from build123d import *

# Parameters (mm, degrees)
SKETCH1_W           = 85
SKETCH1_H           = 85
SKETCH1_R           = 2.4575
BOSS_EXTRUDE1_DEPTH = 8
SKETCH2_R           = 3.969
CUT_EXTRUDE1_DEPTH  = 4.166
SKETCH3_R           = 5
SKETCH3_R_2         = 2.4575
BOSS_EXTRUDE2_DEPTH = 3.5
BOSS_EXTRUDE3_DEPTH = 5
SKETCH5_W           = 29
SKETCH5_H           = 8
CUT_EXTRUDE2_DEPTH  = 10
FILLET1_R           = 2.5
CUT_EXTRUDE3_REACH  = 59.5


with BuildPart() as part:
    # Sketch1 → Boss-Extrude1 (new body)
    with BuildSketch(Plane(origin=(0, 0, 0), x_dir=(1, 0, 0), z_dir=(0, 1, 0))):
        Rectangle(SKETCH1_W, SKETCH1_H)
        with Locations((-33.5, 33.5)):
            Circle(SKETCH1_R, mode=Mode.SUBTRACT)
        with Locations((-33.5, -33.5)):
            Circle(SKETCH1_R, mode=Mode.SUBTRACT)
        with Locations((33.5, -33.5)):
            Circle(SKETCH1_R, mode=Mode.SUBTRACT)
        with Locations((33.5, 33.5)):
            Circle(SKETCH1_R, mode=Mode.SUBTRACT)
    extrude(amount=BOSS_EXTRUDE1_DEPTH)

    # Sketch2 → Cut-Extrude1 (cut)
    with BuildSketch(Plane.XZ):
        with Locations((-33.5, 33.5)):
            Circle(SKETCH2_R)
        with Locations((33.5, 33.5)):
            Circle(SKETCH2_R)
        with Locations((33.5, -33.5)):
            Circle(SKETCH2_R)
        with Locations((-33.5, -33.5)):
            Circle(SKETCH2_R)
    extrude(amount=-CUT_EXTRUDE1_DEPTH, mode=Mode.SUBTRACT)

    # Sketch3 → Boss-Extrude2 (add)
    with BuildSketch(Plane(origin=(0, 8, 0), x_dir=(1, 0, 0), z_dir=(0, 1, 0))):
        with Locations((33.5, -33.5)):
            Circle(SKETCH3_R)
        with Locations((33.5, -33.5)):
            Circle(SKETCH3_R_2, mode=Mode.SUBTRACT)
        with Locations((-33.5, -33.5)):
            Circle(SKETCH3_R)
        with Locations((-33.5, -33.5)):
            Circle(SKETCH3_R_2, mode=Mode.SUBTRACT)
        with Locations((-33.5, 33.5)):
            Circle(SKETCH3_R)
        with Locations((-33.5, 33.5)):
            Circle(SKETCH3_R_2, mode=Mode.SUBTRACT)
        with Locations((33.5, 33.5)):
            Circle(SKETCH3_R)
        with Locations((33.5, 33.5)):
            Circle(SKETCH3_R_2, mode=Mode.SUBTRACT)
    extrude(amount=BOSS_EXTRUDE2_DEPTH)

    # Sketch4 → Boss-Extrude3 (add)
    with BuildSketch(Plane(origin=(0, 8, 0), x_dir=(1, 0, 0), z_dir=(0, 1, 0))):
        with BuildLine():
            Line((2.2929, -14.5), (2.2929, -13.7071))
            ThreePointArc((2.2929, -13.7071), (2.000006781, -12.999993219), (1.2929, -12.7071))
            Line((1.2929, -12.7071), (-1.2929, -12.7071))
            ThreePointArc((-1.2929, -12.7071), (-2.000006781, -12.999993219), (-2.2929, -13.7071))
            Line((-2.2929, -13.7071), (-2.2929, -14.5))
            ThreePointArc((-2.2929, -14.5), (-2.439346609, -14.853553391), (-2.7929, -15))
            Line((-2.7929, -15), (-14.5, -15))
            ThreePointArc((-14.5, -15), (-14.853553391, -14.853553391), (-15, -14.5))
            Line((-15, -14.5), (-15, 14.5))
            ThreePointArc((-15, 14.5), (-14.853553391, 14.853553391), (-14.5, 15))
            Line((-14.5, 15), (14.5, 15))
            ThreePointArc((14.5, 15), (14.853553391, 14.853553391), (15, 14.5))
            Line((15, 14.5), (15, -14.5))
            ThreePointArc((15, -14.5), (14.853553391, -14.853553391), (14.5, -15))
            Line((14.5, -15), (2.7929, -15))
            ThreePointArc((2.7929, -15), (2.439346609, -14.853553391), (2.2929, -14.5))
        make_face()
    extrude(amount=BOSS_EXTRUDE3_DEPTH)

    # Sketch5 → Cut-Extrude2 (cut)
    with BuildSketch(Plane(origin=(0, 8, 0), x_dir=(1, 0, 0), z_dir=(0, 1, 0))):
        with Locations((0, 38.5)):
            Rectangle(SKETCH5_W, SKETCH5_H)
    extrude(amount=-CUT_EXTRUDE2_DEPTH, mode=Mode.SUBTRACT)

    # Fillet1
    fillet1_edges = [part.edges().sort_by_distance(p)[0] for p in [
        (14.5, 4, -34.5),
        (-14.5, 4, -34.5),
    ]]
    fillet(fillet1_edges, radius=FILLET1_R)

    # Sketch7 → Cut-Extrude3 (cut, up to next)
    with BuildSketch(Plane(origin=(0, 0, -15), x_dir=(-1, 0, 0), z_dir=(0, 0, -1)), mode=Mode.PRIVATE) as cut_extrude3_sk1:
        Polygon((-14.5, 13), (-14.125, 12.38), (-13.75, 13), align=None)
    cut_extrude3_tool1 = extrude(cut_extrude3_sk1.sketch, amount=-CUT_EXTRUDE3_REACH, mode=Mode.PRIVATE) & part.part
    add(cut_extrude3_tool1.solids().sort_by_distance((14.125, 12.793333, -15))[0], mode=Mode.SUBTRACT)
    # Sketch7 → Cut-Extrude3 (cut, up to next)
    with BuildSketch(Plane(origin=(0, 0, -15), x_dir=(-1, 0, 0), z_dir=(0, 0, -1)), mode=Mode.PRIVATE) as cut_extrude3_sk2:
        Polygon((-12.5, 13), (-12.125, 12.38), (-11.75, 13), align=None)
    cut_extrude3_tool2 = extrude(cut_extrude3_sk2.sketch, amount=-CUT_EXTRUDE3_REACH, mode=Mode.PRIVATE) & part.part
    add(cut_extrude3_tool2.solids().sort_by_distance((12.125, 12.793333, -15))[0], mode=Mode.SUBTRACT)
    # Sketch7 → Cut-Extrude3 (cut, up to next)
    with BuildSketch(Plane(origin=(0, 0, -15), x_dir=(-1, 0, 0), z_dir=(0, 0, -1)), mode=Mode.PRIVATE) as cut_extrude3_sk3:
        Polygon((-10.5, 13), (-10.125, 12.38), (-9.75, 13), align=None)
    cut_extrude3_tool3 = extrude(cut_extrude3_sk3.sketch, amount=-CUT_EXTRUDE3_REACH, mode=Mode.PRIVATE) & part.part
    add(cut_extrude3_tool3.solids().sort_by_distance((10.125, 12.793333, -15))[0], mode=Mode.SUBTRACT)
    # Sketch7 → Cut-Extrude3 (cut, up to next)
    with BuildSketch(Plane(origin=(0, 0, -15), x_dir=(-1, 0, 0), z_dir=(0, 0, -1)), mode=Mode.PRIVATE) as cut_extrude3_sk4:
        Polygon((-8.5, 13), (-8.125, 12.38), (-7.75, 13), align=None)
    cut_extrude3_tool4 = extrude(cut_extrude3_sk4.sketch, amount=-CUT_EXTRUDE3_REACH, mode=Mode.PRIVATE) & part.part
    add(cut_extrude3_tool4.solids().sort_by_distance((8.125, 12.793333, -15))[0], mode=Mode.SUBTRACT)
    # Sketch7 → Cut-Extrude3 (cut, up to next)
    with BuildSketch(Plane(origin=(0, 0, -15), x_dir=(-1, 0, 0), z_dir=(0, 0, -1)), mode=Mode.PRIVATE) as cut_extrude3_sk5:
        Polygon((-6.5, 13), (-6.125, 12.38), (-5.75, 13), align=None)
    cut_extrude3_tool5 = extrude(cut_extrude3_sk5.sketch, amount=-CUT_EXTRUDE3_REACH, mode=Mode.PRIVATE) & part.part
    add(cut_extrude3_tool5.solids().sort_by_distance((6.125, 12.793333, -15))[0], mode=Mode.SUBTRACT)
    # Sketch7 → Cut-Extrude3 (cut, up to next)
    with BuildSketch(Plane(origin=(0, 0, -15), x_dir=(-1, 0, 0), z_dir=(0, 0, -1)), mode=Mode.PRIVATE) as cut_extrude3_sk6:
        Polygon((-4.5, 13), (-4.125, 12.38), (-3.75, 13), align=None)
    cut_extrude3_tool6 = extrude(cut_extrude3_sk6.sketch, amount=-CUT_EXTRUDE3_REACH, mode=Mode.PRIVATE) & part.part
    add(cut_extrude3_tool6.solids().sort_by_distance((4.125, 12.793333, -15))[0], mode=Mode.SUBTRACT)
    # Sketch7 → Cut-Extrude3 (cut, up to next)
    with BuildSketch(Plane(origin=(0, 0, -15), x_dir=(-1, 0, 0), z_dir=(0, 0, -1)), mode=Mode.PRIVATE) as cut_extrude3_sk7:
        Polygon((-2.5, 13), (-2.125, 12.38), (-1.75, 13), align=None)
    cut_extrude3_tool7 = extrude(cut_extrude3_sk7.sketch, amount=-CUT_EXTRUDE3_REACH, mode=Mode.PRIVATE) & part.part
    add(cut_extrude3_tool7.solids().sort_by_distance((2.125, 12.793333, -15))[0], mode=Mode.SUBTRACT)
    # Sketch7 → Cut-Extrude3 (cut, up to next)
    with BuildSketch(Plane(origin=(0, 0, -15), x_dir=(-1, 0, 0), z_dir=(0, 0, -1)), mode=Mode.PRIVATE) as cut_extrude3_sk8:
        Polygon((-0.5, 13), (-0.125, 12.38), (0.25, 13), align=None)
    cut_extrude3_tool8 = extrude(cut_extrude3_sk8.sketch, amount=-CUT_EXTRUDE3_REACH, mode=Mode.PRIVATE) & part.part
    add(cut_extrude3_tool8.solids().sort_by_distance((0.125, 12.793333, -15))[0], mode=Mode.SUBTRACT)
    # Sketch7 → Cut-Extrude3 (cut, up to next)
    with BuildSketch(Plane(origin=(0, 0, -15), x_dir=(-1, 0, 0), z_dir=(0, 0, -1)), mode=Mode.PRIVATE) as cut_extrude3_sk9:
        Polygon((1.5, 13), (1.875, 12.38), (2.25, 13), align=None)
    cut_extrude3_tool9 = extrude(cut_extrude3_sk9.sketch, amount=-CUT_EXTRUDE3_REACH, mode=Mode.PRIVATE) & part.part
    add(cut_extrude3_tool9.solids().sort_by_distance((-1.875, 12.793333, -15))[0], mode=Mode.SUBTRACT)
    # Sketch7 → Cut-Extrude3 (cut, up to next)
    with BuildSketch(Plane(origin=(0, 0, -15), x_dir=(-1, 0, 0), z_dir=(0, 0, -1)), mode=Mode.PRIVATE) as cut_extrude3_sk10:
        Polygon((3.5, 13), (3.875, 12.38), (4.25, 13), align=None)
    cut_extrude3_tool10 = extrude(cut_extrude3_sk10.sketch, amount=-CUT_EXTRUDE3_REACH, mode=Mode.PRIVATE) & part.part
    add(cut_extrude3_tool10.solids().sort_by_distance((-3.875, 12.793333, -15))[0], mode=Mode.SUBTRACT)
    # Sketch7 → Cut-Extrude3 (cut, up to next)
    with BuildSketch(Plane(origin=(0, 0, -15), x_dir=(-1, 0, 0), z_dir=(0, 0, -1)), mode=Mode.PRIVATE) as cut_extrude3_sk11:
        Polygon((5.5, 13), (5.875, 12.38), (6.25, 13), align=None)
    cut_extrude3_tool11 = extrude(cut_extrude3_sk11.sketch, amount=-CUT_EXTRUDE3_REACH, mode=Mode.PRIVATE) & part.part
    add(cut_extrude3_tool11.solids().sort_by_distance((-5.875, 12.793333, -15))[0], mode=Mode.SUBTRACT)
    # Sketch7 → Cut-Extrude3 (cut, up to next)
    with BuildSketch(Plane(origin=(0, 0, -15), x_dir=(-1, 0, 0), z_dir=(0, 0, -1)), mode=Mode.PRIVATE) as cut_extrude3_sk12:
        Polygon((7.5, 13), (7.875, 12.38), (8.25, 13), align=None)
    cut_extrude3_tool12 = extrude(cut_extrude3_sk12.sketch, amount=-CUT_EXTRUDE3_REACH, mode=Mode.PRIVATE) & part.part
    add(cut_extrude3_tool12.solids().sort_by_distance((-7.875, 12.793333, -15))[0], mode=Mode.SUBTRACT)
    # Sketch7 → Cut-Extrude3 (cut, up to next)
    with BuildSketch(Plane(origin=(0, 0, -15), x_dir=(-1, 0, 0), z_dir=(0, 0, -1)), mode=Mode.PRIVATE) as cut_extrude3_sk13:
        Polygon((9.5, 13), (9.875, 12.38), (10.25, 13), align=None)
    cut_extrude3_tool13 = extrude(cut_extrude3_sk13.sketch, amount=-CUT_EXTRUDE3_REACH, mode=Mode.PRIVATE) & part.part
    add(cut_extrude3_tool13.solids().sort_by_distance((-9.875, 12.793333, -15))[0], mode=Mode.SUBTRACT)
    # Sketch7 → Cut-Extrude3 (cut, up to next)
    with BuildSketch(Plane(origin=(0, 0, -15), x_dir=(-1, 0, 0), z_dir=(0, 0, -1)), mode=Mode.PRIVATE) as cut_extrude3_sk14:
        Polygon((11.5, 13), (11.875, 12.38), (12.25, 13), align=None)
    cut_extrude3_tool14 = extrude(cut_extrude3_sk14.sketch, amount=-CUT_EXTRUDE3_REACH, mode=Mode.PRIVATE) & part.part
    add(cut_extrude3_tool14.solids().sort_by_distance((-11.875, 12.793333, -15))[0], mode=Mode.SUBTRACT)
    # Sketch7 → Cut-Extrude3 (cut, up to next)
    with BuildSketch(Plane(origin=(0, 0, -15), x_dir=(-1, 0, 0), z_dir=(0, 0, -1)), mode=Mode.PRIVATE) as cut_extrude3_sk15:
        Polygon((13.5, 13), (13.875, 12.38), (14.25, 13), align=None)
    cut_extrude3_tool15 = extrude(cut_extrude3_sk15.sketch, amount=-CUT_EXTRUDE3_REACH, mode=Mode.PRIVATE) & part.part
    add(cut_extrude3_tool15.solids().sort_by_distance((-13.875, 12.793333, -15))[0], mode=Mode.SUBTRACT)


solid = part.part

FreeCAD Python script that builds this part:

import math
import FreeCAD as App
import Part
import Sketcher

V = App.Vector
Q = App.Units.Quantity


def edges_at(feature, points):
    """Names of the edges that pass closest to the given points."""
    edges = feature.Shape.Edges
    near = lambda p: min(range(len(edges)), key=lambda i: edges[i].distToShape(Part.Vertex(*p))[0])
    return sorted({f"Edge{near(p) + 1}" for p in points})


def add_polygon(sketch, points):
    """Adds a closed chain of lines whose ends are joined by coincident constraints."""
    first, n = sketch.GeometryCount, len(points)
    for a, b in zip(points, points[1:] + points[:1]):
        sketch.addGeometry(Part.LineSegment(App.Vector(*a, 0), App.Vector(*b, 0)), False)
    for i in range(n):
        sketch.addConstraint(Sketcher.Constraint("Coincident", first + i, 2, first + (i + 1) % n, 1))

doc = App.newDocument("Part")
params = doc.addObject("Spreadsheet::Sheet", "Params")
for row, (alias, value) in enumerate([
    ("sketch1_width", "85 mm"),
    ("pad1_length", "8 mm"),
    ("pocket1_length", "4.166 mm"),
    ("sketch3_diameter", "10 mm"),
    ("pad2_length", "3.5 mm"),
    ("sketch4_radius", "1 mm"),
    ("sketch4_radius2", "0.5 mm"),
    ("sketch4_width", "29 mm"),
    ("pad3_length", "5 mm"),
    ("sketch5_width", "29 mm"),
    ("sketch5_height", "8 mm"),
    ("pocket2_length", "10 mm"),
    ("fillet_radius", "2.5 mm"),
    ("sketch6_width", "0.75 mm"),
    ("sketch7_width", "0.75 mm"),
    ("sketch8_width", "0.75 mm"),
    ("sketch9_width", "0.75 mm"),
    ("sketch10_width", "0.75 mm"),
    ("sketch11_width", "0.75 mm"),
    ("sketch12_width", "0.75 mm"),
    ("sketch13_width", "0.75 mm"),
    ("sketch14_width", "0.75 mm"),
    ("sketch15_width", "0.75 mm"),
    ("sketch16_width", "0.75 mm"),
    ("sketch17_width", "0.75 mm"),
    ("sketch18_width", "0.75 mm"),
    ("sketch19_width", "0.75 mm"),
    ("sketch20_width", "0.75 mm"),
], start=1):
    params.set(f"A{row}", alias)
    params.set(f"B{row}", "=" + value)
    params.setAlias(f"B{row}", alias)

body = doc.addObject("PartDesign::Body", "Body")

sketch1 = body.newObject("Sketcher::SketchObject", "Sketch")
sketch1.AttachmentSupport = (doc.getObject("XZ_Plane"), [""])
sketch1.MapMode = "FlatFace"
add_polygon(sketch1, [(-42.5, -42.5), (-42.5, 42.5), (42.5, 42.5), (42.5, -42.5)])
sketch1.addGeometry(Part.Circle(V(-33.5, 33.5, 0), V(0, 0, 1), 2.5), False)
sketch1.addGeometry(Part.Circle(V(33.5, 33.5, 0), V(0, 0, 1), 2.5), False)
sketch1.addGeometry(Part.Circle(V(-33.5, -33.5, 0), V(0, 0, 1), 2.5), False)
sketch1.addGeometry(Part.Circle(V(33.5, -33.5, 0), V(0, 0, 1), 2.5), False)
sketch1.addConstraint(Sketcher.Constraint("Vertical", 0))
sketch1.addConstraint(Sketcher.Constraint("Horizontal", 1))
sketch1.addConstraint(Sketcher.Constraint("Vertical", 2))
sketch1.addConstraint(Sketcher.Constraint("Horizontal", 3))
sketch1.addConstraint(Sketcher.Constraint("Equal", 4, 5))
sketch1.addConstraint(Sketcher.Constraint("Equal", 5, 6))
sketch1.addConstraint(Sketcher.Constraint("Equal", 6, 7))
sketch1.addConstraint(Sketcher.Constraint("Symmetric", 5, 3, 6, 3, -1, 1))
sketch1.addConstraint(Sketcher.Constraint("Symmetric", 4, 3, 7, 3, -1, 1))
sketch1.addConstraint(Sketcher.Constraint("Symmetric", 0, 2, 2, 2, -1, 1))
sketch1.addConstraint(Sketcher.Constraint("Symmetric", 4, 3, 5, 3, -2))
sketch1.addConstraint(Sketcher.Constraint("Equal", 3, 0))
sketch1.addConstraint(Sketcher.Constraint("DistanceX", 1, 1, 1, 2, Q("85 mm")))
sketch1.addConstraint(Sketcher.Constraint("Diameter", 4, Q("4.915 mm")))
sketch1.addConstraint(Sketcher.Constraint("DistanceX", 4, 3, 5, 3, Q("67 mm")))
sketch1.addConstraint(Sketcher.Constraint("DistanceY", 6, 3, 4, 3, Q("67 mm")))
sketch1.setExpression("Constraints[16]", "Params.sketch1_width")
pad1 = body.newObject("PartDesign::Pad", "Pad")
pad1.Profile = sketch1
pad1.setExpression("Length", "Params.pad1_length")
pad1.Reversed = True

sketch2 = body.newObject("Sketcher::SketchObject", "Sketch001")
sketch2.AttachmentSupport = (doc.getObject("XZ_Plane"), [""])
sketch2.MapMode = "FlatFace"
sketch2.addGeometry(Part.Circle(V(-33.5, 33.5, 0), V(0, 0, 1), 4), False)
sketch2.addGeometry(Part.Circle(V(33.5, 33.5, 0), V(0, 0, 1), 4), False)
sketch2.addGeometry(Part.Circle(V(33.5, -33.5, 0), V(0, 0, 1), 4), False)
sketch2.addGeometry(Part.Circle(V(-33.5, -33.5, 0), V(0, 0, 1), 4), False)
sketch2.addConstraint(Sketcher.Constraint("Equal", 0, 1))
sketch2.addConstraint(Sketcher.Constraint("Equal", 1, 2))
sketch2.addConstraint(Sketcher.Constraint("Equal", 2, 3))
sketch2.addConstraint(Sketcher.Constraint("Symmetric", 0, 3, 2, 3, -1, 1))
sketch2.addConstraint(Sketcher.Constraint("Symmetric", 1, 3, 3, 3, -1, 1))
sketch2.addConstraint(Sketcher.Constraint("Symmetric", 0, 3, 1, 3, -2))
sketch2.addConstraint(Sketcher.Constraint("Diameter", 0, Q("7.938 mm")))
sketch2.addConstraint(Sketcher.Constraint("DistanceX", 0, 3, 1, 3, Q("67 mm")))
sketch2.addConstraint(Sketcher.Constraint("DistanceY", 2, 3, 1, 3, Q("67 mm")))
pocket1 = body.newObject("PartDesign::Pocket", "Pocket")
pocket1.Profile = sketch2
pocket1.setExpression("Length", "Params.pocket1_length")

sketch3 = body.newObject("Sketcher::SketchObject", "Sketch002")
sketch3.AttachmentSupport = (doc.getObject("XZ_Plane"), [""])
sketch3.MapMode = "FlatFace"
sketch3.AttachmentOffset = App.Placement(V(0, 0, -8), App.Rotation())
sketch3.addGeometry(Part.Circle(V(33.5, 33.5, 0), V(0, 0, 1), 5), False)
sketch3.addGeometry(Part.Circle(V(33.5, 33.5, 0), V(0, 0, 1), 2.5), False)
sketch3.addGeometry(Part.Circle(V(-33.5, 33.5, 0), V(0, 0, 1), 5), False)
sketch3.addGeometry(Part.Circle(V(-33.5, 33.5, 0), V(0, 0, 1), 2.5), False)
sketch3.addGeometry(Part.Circle(V(-33.5, -33.5, 0), V(0, 0, 1), 5), False)
sketch3.addGeometry(Part.Circle(V(-33.5, -33.5, 0), V(0, 0, 1), 2.5), False)
sketch3.addGeometry(Part.Circle(V(33.5, -33.5, 0), V(0, 0, 1), 5), False)
sketch3.addGeometry(Part.Circle(V(33.5, -33.5, 0), V(0, 0, 1), 2.5), False)
sketch3.addConstraint(Sketcher.Constraint("Coincident", 1, 3, 0, 3))
sketch3.addConstraint(Sketcher.Constraint("Coincident", 3, 3, 2, 3))
sketch3.addConstraint(Sketcher.Constraint("Coincident", 5, 3, 4, 3))
sketch3.addConstraint(Sketcher.Constraint("Coincident", 7, 3, 6, 3))
sketch3.addConstraint(Sketcher.Constraint("Equal", 0, 2))
sketch3.addConstraint(Sketcher.Constraint("Equal", 1, 3))
sketch3.addConstraint(Sketcher.Constraint("Equal", 2, 4))
sketch3.addConstraint(Sketcher.Constraint("Equal", 3, 5))
sketch3.addConstraint(Sketcher.Constraint("Equal", 4, 6))
sketch3.addConstraint(Sketcher.Constraint("Equal", 5, 7))
sketch3.addConstraint(Sketcher.Constraint("Symmetric", 0, 3, 4, 3, -1, 1))
sketch3.addConstraint(Sketcher.Constraint("Symmetric", 2, 3, 6, 3, -1, 1))
sketch3.addConstraint(Sketcher.Constraint("Symmetric", 0, 3, 2, 3, -2))
sketch3.addConstraint(Sketcher.Constraint("Diameter", 0, Q("10 mm")))
sketch3.addConstraint(Sketcher.Constraint("Diameter", 1, Q("4.915 mm")))
sketch3.addConstraint(Sketcher.Constraint("DistanceX", 2, 3, 0, 3, Q("67 mm")))
sketch3.addConstraint(Sketcher.Constraint("DistanceY", 4, 3, 2, 3, Q("67 mm")))
sketch3.setExpression("Constraints[13]", "Params.sketch3_diameter")
pad2 = body.newObject("PartDesign::Pad", "Pad001")
pad2.Profile = sketch3
pad2.setExpression("Length", "Params.pad2_length")
pad2.Reversed = True

sketch4 = body.newObject("Sketcher::SketchObject", "Sketch003")
sketch4.AttachmentSupport = (doc.getObject("XZ_Plane"), [""])
sketch4.MapMode = "FlatFace"
sketch4.AttachmentOffset = App.Placement(V(0, 0, -8), App.Rotation())
sketch4.addGeometry(Part.LineSegment(V(2.29, 13.71, 0), V(2.29, 14.5, 0)), False)
sketch4.addGeometry(Part.ArcOfCircle(Part.Circle(V(2.79, 14.5, 0), V(0, 0, 1), 0.5), math.radians(90), math.radians(180)), False)
sketch4.addGeometry(Part.LineSegment(V(2.79, 15, 0), V(14.5, 15, 0)), False)
sketch4.addGeometry(Part.ArcOfCircle(Part.Circle(V(14.5, 14.5, 0), V(0, 0, 1), 0.5), math.radians(0), math.radians(90)), False)
sketch4.addGeometry(Part.LineSegment(V(15, 14.5, 0), V(15, -14.5, 0)), False)
sketch4.addGeometry(Part.ArcOfCircle(Part.Circle(V(14.5, -14.5, 0), V(0, 0, 1), 0.5), math.radians(-90), math.radians(0)), False)
sketch4.addGeometry(Part.LineSegment(V(14.5, -15, 0), V(-14.5, -15, 0)), False)
sketch4.addGeometry(Part.ArcOfCircle(Part.Circle(V(-14.5, -14.5, 0), V(0, 0, 1), 0.5), math.radians(180), math.radians(270)), False)
sketch4.addGeometry(Part.LineSegment(V(-15, -14.5, 0), V(-15, 14.5, 0)), False)
sketch4.addGeometry(Part.ArcOfCircle(Part.Circle(V(-14.5, 14.5, 0), V(0, 0, 1), 0.5), math.radians(90), math.radians(180)), False)
sketch4.addGeometry(Part.LineSegment(V(-14.5, 15, 0), V(-2.79, 15, 0)), False)
sketch4.addGeometry(Part.ArcOfCircle(Part.Circle(V(-2.79, 14.5, 0), V(0, 0, 1), 0.5), math.radians(0), math.radians(90)), False)
sketch4.addGeometry(Part.LineSegment(V(-2.29, 14.5, 0), V(-2.29, 13.71, 0)), False)
sketch4.addGeometry(Part.ArcOfCircle(Part.Circle(V(-1.29, 13.71, 0), V(0, 0, 1), 1), math.radians(-180), math.radians(-90)), False)
sketch4.addGeometry(Part.LineSegment(V(-1.29, 12.71, 0), V(1.29, 12.71, 0)), False)
sketch4.addGeometry(Part.ArcOfCircle(Part.Circle(V(1.29, 13.71, 0), V(0, 0, 1), 1), math.radians(-90), math.radians(0)), False)
sketch4.addConstraint(Sketcher.Constraint("Tangent", 0, 2, 1, 2))
sketch4.addConstraint(Sketcher.Constraint("Tangent", 1, 1, 2, 1))
sketch4.addConstraint(Sketcher.Constraint("Tangent", 2, 2, 3, 2))
sketch4.addConstraint(Sketcher.Constraint("Tangent", 3, 1, 4, 1))
sketch4.addConstraint(Sketcher.Constraint("Tangent", 4, 2, 5, 2))
sketch4.addConstraint(Sketcher.Constraint("Tangent", 5, 1, 6, 1))
sketch4.addConstraint(Sketcher.Constraint("Tangent", 6, 2, 7, 2))
sketch4.addConstraint(Sketcher.Constraint("Tangent", 7, 1, 8, 1))
sketch4.addConstraint(Sketcher.Constraint("Tangent", 8, 2, 9, 2))
sketch4.addConstraint(Sketcher.Constraint("Tangent", 9, 1, 10, 1))
sketch4.addConstraint(Sketcher.Constraint("Tangent", 10, 2, 11, 2))
sketch4.addConstraint(Sketcher.Constraint("Tangent", 11, 1, 12, 1))
sketch4.addConstraint(Sketcher.Constraint("Tangent", 12, 2, 13, 1))
sketch4.addConstraint(Sketcher.Constraint("Tangent", 13, 2, 14, 1))
sketch4.addConstraint(Sketcher.Constraint("Tangent", 14, 2, 15, 1))
sketch4.addConstraint(Sketcher.Constraint("Tangent", 15, 2, 0, 1))
sketch4.addConstraint(Sketcher.Constraint("Vertical", 0))
sketch4.addConstraint(Sketcher.Constraint("Horizontal", 2))
sketch4.addConstraint(Sketcher.Constraint("Vertical", 4))
sketch4.addConstraint(Sketcher.Constraint("Horizontal", 6))
sketch4.addConstraint(Sketcher.Constraint("Vertical", 8))
sketch4.addConstraint(Sketcher.Constraint("Horizontal", 10))
sketch4.addConstraint(Sketcher.Constraint("Vertical", 12))
sketch4.addConstraint(Sketcher.Constraint("Horizontal", 14))
sketch4.addConstraint(Sketcher.Constraint("Equal", 1, 3))
sketch4.addConstraint(Sketcher.Constraint("Equal", 3, 5))
sketch4.addConstraint(Sketcher.Constraint("Equal", 5, 7))
sketch4.addConstraint(Sketcher.Constraint("Equal", 7, 9))
sketch4.addConstraint(Sketcher.Constraint("Equal", 9, 11))
sketch4.addConstraint(Sketcher.Constraint("Equal", 13, 15))
sketch4.addConstraint(Sketcher.Constraint("Symmetric", 3, 3, 7, 3, -1, 1))
sketch4.addConstraint(Sketcher.Constraint("Symmetric", 1, 3, 11, 3, -2))
sketch4.addConstraint(Sketcher.Constraint("Equal", 6, 4))
sketch4.addConstraint(Sketcher.Constraint("Radius", 13, Q("1 mm")))
sketch4.addConstraint(Sketcher.Constraint("Radius", 1, Q("0.5 mm")))
sketch4.addConstraint(Sketcher.Constraint("DistanceX", 6, 2, 6, 1, Q("29 mm")))
sketch4.addConstraint(Sketcher.Constraint("DistanceX", 2, 1, 2, 2, Q("11.7071 mm")))
sketch4.addConstraint(Sketcher.Constraint("DistanceY", 0, 1, 0, 2, Q("0.7929 mm")))
sketch4.setExpression("Constraints[33]", "Params.sketch4_radius")
sketch4.setExpression("Constraints[34]", "Params.sketch4_radius2")
sketch4.setExpression("Constraints[35]", "Params.sketch4_width")
pad3 = body.newObject("PartDesign::Pad", "Pad002")
pad3.Profile = sketch4
pad3.setExpression("Length", "Params.pad3_length")
pad3.Reversed = True

sketch5 = body.newObject("Sketcher::SketchObject", "Sketch004")
sketch5.AttachmentSupport = (doc.getObject("XZ_Plane"), [""])
sketch5.MapMode = "FlatFace"
sketch5.AttachmentOffset = App.Placement(V(0, 0, -8), App.Rotation())
add_polygon(sketch5, [(-14, -42), (-14, -34), (14, -34), (14, -42)])
sketch5.addConstraint(Sketcher.Constraint("Vertical", 0))
sketch5.addConstraint(Sketcher.Constraint("Horizontal", 1))
sketch5.addConstraint(Sketcher.Constraint("Vertical", 2))
sketch5.addConstraint(Sketcher.Constraint("Horizontal", 3))
sketch5.addConstraint(Sketcher.Constraint("DistanceX", 1, 1, 1, 2, Q("29 mm")))
sketch5.addConstraint(Sketcher.Constraint("DistanceY", 0, 1, 0, 2, Q("8 mm")))
sketch5.addConstraint(Sketcher.Constraint("DistanceX", 0, 2, -1, 1, Q("14.5 mm")))
sketch5.addConstraint(Sketcher.Constraint("DistanceY", 0, 2, -1, 1, Q("34.5 mm")))
sketch5.setExpression("Constraints[8]", "Params.sketch5_width")
sketch5.setExpression("Constraints[9]", "Params.sketch5_height")
pocket2 = body.newObject("PartDesign::Pocket", "Pocket001")
pocket2.Profile = sketch5
pocket2.setExpression("Length", "Params.pocket2_length")
pocket2.Reversed = True
doc.recompute()

fillet = body.newObject("PartDesign::Fillet", "Fillet")
fillet.Base = (pocket2, edges_at(pocket2, [(14.5, 4, -34.5), (-14.5, 4, -34.5)]))
fillet.setExpression("Radius", "Params.fillet_radius")

sketch6 = body.newObject("Sketcher::SketchObject", "Sketch005")
sketch6.AttachmentSupport = (doc.getObject("XY_Plane"), [""])
sketch6.MapMode = "FlatFace"
sketch6.AttachmentOffset = App.Placement(V(0, 0, -15), App.Rotation())
add_polygon(sketch6, [(14.5, 13), (14.1, 12.4), (13.8, 13)])
sketch6.addConstraint(Sketcher.Constraint("Horizontal", 2))
sketch6.addConstraint(Sketcher.Constraint("Equal", 0, 1))
sketch6.addConstraint(Sketcher.Constraint("DistanceY", -1, 1, 1, 2, Q("13 mm")))
sketch6.addConstraint(Sketcher.Constraint("DistanceX", 2, 1, 2, 2, Q("0.75 mm")))
sketch6.addConstraint(Sketcher.Constraint("DistanceX", -1, 1, 2, 2, Q("14.5 mm")))
sketch6.addConstraint(Sketcher.Constraint("DistanceY", -1, 1, 0, 2, Q("12.38 mm")))
sketch6.setExpression("Constraints[6]", "Params.sketch6_width")
pocket3 = body.newObject("PartDesign::Pocket", "Pocket002")
pocket3.Profile = sketch6
pocket3.Type = "UpToFirst"
pocket3.Reversed = True

sketch7 = body.newObject("Sketcher::SketchObject", "Sketch006")
sketch7.AttachmentSupport = (doc.getObject("XY_Plane"), [""])
sketch7.MapMode = "FlatFace"
sketch7.AttachmentOffset = App.Placement(V(0, 0, -15), App.Rotation())
add_polygon(sketch7, [(12.5, 13), (12.1, 12.4), (11.8, 13)])
sketch7.addConstraint(Sketcher.Constraint("Horizontal", 2))
sketch7.addConstraint(Sketcher.Constraint("Equal", 0, 1))
sketch7.addConstraint(Sketcher.Constraint("DistanceY", -1, 1, 1, 2, Q("13 mm")))
sketch7.addConstraint(Sketcher.Constraint("DistanceX", 2, 1, 2, 2, Q("0.75 mm")))
sketch7.addConstraint(Sketcher.Constraint("DistanceX", -1, 1, 2, 2, Q("12.5 mm")))
sketch7.addConstraint(Sketcher.Constraint("DistanceY", -1, 1, 0, 2, Q("12.38 mm")))
sketch7.setExpression("Constraints[6]", "Params.sketch7_width")
pocket4 = body.newObject("PartDesign::Pocket", "Pocket003")
pocket4.Profile = sketch7
pocket4.Type = "UpToFirst"
pocket4.Reversed = True

sketch8 = body.newObject("Sketcher::SketchObject", "Sketch007")
sketch8.AttachmentSupport = (doc.getObject("XY_Plane"), [""])
sketch8.MapMode = "FlatFace"
sketch8.AttachmentOffset = App.Placement(V(0, 0, -15), App.Rotation())
add_polygon(sketch8, [(10.5, 13), (10.1, 12.4), (9.8, 13)])
sketch8.addConstraint(Sketcher.Constraint("Horizontal", 2))
sketch8.addConstraint(Sketcher.Constraint("Equal", 0, 1))
sketch8.addConstraint(Sketcher.Constraint("DistanceY", -1, 1, 1, 2, Q("13 mm")))
sketch8.addConstraint(Sketcher.Constraint("DistanceX", 2, 1, 2, 2, Q("0.75 mm")))
sketch8.addConstraint(Sketcher.Constraint("DistanceX", -1, 1, 2, 2, Q("10.5 mm")))
sketch8.addConstraint(Sketcher.Constraint("DistanceY", -1, 1, 0, 2, Q("12.38 mm")))
sketch8.setExpression("Constraints[6]", "Params.sketch8_width")
pocket5 = body.newObject("PartDesign::Pocket", "Pocket004")
pocket5.Profile = sketch8
pocket5.Type = "UpToFirst"
pocket5.Reversed = True

sketch9 = body.newObject("Sketcher::SketchObject", "Sketch008")
sketch9.AttachmentSupport = (doc.getObject("XY_Plane"), [""])
sketch9.MapMode = "FlatFace"
sketch9.AttachmentOffset = App.Placement(V(0, 0, -15), App.Rotation())
add_polygon(sketch9, [(8.5, 13), (8.1, 12.4), (7.8, 13)])
sketch9.addConstraint(Sketcher.Constraint("Horizontal", 2))
sketch9.addConstraint(Sketcher.Constraint("Equal", 0, 1))
sketch9.addConstraint(Sketcher.Constraint("DistanceY", -1, 1, 1, 2, Q("13 mm")))
sketch9.addConstraint(Sketcher.Constraint("DistanceX", 2, 1, 2, 2, Q("0.75 mm")))
sketch9.addConstraint(Sketcher.Constraint("DistanceX", -1, 1, 2, 2, Q("8.5 mm")))
sketch9.addConstraint(Sketcher.Constraint("DistanceY", -1, 1, 0, 2, Q("12.38 mm")))
sketch9.setExpression("Constraints[6]", "Params.sketch9_width")
pocket6 = body.newObject("PartDesign::Pocket", "Pocket005")
pocket6.Profile = sketch9
pocket6.Type = "UpToFirst"
pocket6.Reversed = True

sketch10 = body.newObject("Sketcher::SketchObject", "Sketch009")
sketch10.AttachmentSupport = (doc.getObject("XY_Plane"), [""])
sketch10.MapMode = "FlatFace"
sketch10.AttachmentOffset = App.Placement(V(0, 0, -15), App.Rotation())
add_polygon(sketch10, [(6.5, 13), (6.1, 12.4), (5.8, 13)])
sketch10.addConstraint(Sketcher.Constraint("Horizontal", 2))
sketch10.addConstraint(Sketcher.Constraint("Equal", 0, 1))
sketch10.addConstraint(Sketcher.Constraint("DistanceY", -1, 1, 1, 2, Q("13 mm")))
sketch10.addConstraint(Sketcher.Constraint("DistanceX", 2, 1, 2, 2, Q("0.75 mm")))
sketch10.addConstraint(Sketcher.Constraint("DistanceX", -1, 1, 2, 2, Q("6.5 mm")))
sketch10.addConstraint(Sketcher.Constraint("DistanceY", -1, 1, 0, 2, Q("12.38 mm")))
sketch10.setExpression("Constraints[6]", "Params.sketch10_width")
pocket7 = body.newObject("PartDesign::Pocket", "Pocket006")
pocket7.Profile = sketch10
pocket7.Type = "UpToFirst"
pocket7.Reversed = True

sketch11 = body.newObject("Sketcher::SketchObject", "Sketch010")
sketch11.AttachmentSupport = (doc.getObject("XY_Plane"), [""])
sketch11.MapMode = "FlatFace"
sketch11.AttachmentOffset = App.Placement(V(0, 0, -15), App.Rotation())
add_polygon(sketch11, [(4.5, 13), (4.1, 12.4), (3.8, 13)])
sketch11.addConstraint(Sketcher.Constraint("Horizontal", 2))
sketch11.addConstraint(Sketcher.Constraint("Equal", 0, 1))
sketch11.addConstraint(Sketcher.Constraint("DistanceY", -1, 1, 1, 2, Q("13 mm")))
sketch11.addConstraint(Sketcher.Constraint("DistanceX", 2, 1, 2, 2, Q("0.75 mm")))
sketch11.addConstraint(Sketcher.Constraint("DistanceX", -1, 1, 2, 2, Q("4.5 mm")))
sketch11.addConstraint(Sketcher.Constraint("DistanceY", -1, 1, 0, 2, Q("12.38 mm")))
sketch11.setExpression("Constraints[6]", "Params.sketch11_width")
pocket8 = body.newObject("PartDesign::Pocket", "Pocket007")
pocket8.Profile = sketch11
pocket8.Type = "UpToFirst"
pocket8.Reversed = True

sketch12 = body.newObject("Sketcher::SketchObject", "Sketch011")
sketch12.AttachmentSupport = (doc.getObject("XY_Plane"), [""])
sketch12.MapMode = "FlatFace"
sketch12.AttachmentOffset = App.Placement(V(0, 0, -15), App.Rotation())
add_polygon(sketch12, [(2.5, 13), (2.1, 12.4), (1.8, 13)])
sketch12.addConstraint(Sketcher.Constraint("Horizontal", 2))
sketch12.addConstraint(Sketcher.Constraint("Equal", 0, 1))
sketch12.addConstraint(Sketcher.Constraint("DistanceY", -1, 1, 1, 2, Q("13 mm")))
sketch12.addConstraint(Sketcher.Constraint("DistanceX", 2, 1, 2, 2, Q("0.75 mm")))
sketch12.addConstraint(Sketcher.Constraint("DistanceX", -1, 1, 2, 2, Q("2.5 mm")))
sketch12.addConstraint(Sketcher.Constraint("DistanceY", -1, 1, 0, 2, Q("12.38 mm")))
sketch12.setExpression("Constraints[6]", "Params.sketch12_width")
pocket9 = body.newObject("PartDesign::Pocket", "Pocket008")
pocket9.Profile = sketch12
pocket9.Type = "UpToFirst"
pocket9.Reversed = True

sketch13 = body.newObject("Sketcher::SketchObject", "Sketch012")
sketch13.AttachmentSupport = (doc.getObject("XY_Plane"), [""])
sketch13.MapMode = "FlatFace"
sketch13.AttachmentOffset = App.Placement(V(0, 0, -15), App.Rotation())
add_polygon(sketch13, [(0.5, 13), (0.1, 12.4), (-0.2, 13)])
sketch13.addConstraint(Sketcher.Constraint("Horizontal", 2))
sketch13.addConstraint(Sketcher.Constraint("Equal", 0, 1))
sketch13.addConstraint(Sketcher.Constraint("DistanceY", -1, 1, 1, 2, Q("13 mm")))
sketch13.addConstraint(Sketcher.Constraint("DistanceX", 2, 1, 2, 2, Q("0.75 mm")))
sketch13.addConstraint(Sketcher.Constraint("DistanceX", -1, 1, 2, 2, Q("0.5 mm")))
sketch13.addConstraint(Sketcher.Constraint("DistanceY", -1, 1, 0, 2, Q("12.38 mm")))
sketch13.setExpression("Constraints[6]", "Params.sketch13_width")
pocket10 = body.newObject("PartDesign::Pocket", "Pocket009")
pocket10.Profile = sketch13
pocket10.Type = "UpToFirst"
pocket10.Reversed = True

sketch14 = body.newObject("Sketcher::SketchObject", "Sketch013")
sketch14.AttachmentSupport = (doc.getObject("XY_Plane"), [""])
sketch14.MapMode = "FlatFace"
sketch14.AttachmentOffset = App.Placement(V(0, 0, -15), App.Rotation())
add_polygon(sketch14, [(-1.5, 13), (-1.9, 12.4), (-2.2, 13)])
sketch14.addConstraint(Sketcher.Constraint("Horizontal", 2))
sketch14.addConstraint(Sketcher.Constraint("Equal", 0, 1))
sketch14.addConstraint(Sketcher.Constraint("DistanceY", -1, 1, 1, 2, Q("13 mm")))
sketch14.addConstraint(Sketcher.Constraint("DistanceX", 2, 1, 2, 2, Q("0.75 mm")))
sketch14.addConstraint(Sketcher.Constraint("DistanceX", 2, 2, -1, 1, Q("1.5 mm")))
sketch14.addConstraint(Sketcher.Constraint("DistanceY", -1, 1, 0, 2, Q("12.38 mm")))
sketch14.setExpression("Constraints[6]", "Params.sketch14_width")
pocket11 = body.newObject("PartDesign::Pocket", "Pocket010")
pocket11.Profile = sketch14
pocket11.Type = "UpToFirst"
pocket11.Reversed = True

sketch15 = body.newObject("Sketcher::SketchObject", "Sketch014")
sketch15.AttachmentSupport = (doc.getObject("XY_Plane"), [""])
sketch15.MapMode = "FlatFace"
sketch15.AttachmentOffset = App.Placement(V(0, 0, -15), App.Rotation())
add_polygon(sketch15, [(-3.5, 13), (-3.9, 12.4), (-4.2, 13)])
sketch15.addConstraint(Sketcher.Constraint("Horizontal", 2))
sketch15.addConstraint(Sketcher.Constraint("Equal", 0, 1))
sketch15.addConstraint(Sketcher.Constraint("DistanceY", -1, 1, 1, 2, Q("13 mm")))
sketch15.addConstraint(Sketcher.Constraint("DistanceX", 2, 1, 2, 2, Q("0.75 mm")))
sketch15.addConstraint(Sketcher.Constraint("DistanceX", 2, 2, -1, 1, Q("3.5 mm")))
sketch15.addConstraint(Sketcher.Constraint("DistanceY", -1, 1, 0, 2, Q("12.38 mm")))
sketch15.setExpression("Constraints[6]", "Params.sketch15_width")
pocket12 = body.newObject("PartDesign::Pocket", "Pocket011")
pocket12.Profile = sketch15
pocket12.Type = "UpToFirst"
pocket12.Reversed = True

sketch16 = body.newObject("Sketcher::SketchObject", "Sketch015")
sketch16.AttachmentSupport = (doc.getObject("XY_Plane"), [""])
sketch16.MapMode = "FlatFace"
sketch16.AttachmentOffset = App.Placement(V(0, 0, -15), App.Rotation())
add_polygon(sketch16, [(-5.5, 13), (-5.9, 12.4), (-6.2, 13)])
sketch16.addConstraint(Sketcher.Constraint("Horizontal", 2))
sketch16.addConstraint(Sketcher.Constraint("Equal", 0, 1))
sketch16.addConstraint(Sketcher.Constraint("DistanceY", -1, 1, 1, 2, Q("13 mm")))
sketch16.addConstraint(Sketcher.Constraint("DistanceX", 2, 1, 2, 2, Q("0.75 mm")))
sketch16.addConstraint(Sketcher.Constraint("DistanceX", 2, 2, -1, 1, Q("5.5 mm")))
sketch16.addConstraint(Sketcher.Constraint("DistanceY", -1, 1, 0, 2, Q("12.38 mm")))
sketch16.setExpression("Constraints[6]", "Params.sketch16_width")
pocket13 = body.newObject("PartDesign::Pocket", "Pocket012")
pocket13.Profile = sketch16
pocket13.Type = "UpToFirst"
pocket13.Reversed = True

sketch17 = body.newObject("Sketcher::SketchObject", "Sketch016")
sketch17.AttachmentSupport = (doc.getObject("XY_Plane"), [""])
sketch17.MapMode = "FlatFace"
sketch17.AttachmentOffset = App.Placement(V(0, 0, -15), App.Rotation())
add_polygon(sketch17, [(-7.5, 13), (-7.9, 12.4), (-8.2, 13)])
sketch17.addConstraint(Sketcher.Constraint("Horizontal", 2))
sketch17.addConstraint(Sketcher.Constraint("Equal", 0, 1))
sketch17.addConstraint(Sketcher.Constraint("DistanceY", -1, 1, 1, 2, Q("13 mm")))
sketch17.addConstraint(Sketcher.Constraint("DistanceX", 2, 1, 2, 2, Q("0.75 mm")))
sketch17.addConstraint(Sketcher.Constraint("DistanceX", 2, 2, -1, 1, Q("7.5 mm")))
sketch17.addConstraint(Sketcher.Constraint("DistanceY", -1, 1, 0, 2, Q("12.38 mm")))
sketch17.setExpression("Constraints[6]", "Params.sketch17_width")
pocket14 = body.newObject("PartDesign::Pocket", "Pocket013")
pocket14.Profile = sketch17
pocket14.Type = "UpToFirst"
pocket14.Reversed = True

sketch18 = body.newObject("Sketcher::SketchObject", "Sketch017")
sketch18.AttachmentSupport = (doc.getObject("XY_Plane"), [""])
sketch18.MapMode = "FlatFace"
sketch18.AttachmentOffset = App.Placement(V(0, 0, -15), App.Rotation())
add_polygon(sketch18, [(-9.5, 13), (-9.9, 12.4), (-10.2, 13)])
sketch18.addConstraint(Sketcher.Constraint("Horizontal", 2))
sketch18.addConstraint(Sketcher.Constraint("Equal", 0, 1))
sketch18.addConstraint(Sketcher.Constraint("DistanceY", -1, 1, 1, 2, Q("13 mm")))
sketch18.addConstraint(Sketcher.Constraint("DistanceX", 2, 1, 2, 2, Q("0.75 mm")))
sketch18.addConstraint(Sketcher.Constraint("DistanceX", 2, 2, -1, 1, Q("9.5 mm")))
sketch18.addConstraint(Sketcher.Constraint("DistanceY", -1, 1, 0, 2, Q("12.38 mm")))
sketch18.setExpression("Constraints[6]", "Params.sketch18_width")
pocket15 = body.newObject("PartDesign::Pocket", "Pocket014")
pocket15.Profile = sketch18
pocket15.Type = "UpToFirst"
pocket15.Reversed = True

sketch19 = body.newObject("Sketcher::SketchObject", "Sketch018")
sketch19.AttachmentSupport = (doc.getObject("XY_Plane"), [""])
sketch19.MapMode = "FlatFace"
sketch19.AttachmentOffset = App.Placement(V(0, 0, -15), App.Rotation())
add_polygon(sketch19, [(-11.5, 13), (-11.9, 12.4), (-12.2, 13)])
sketch19.addConstraint(Sketcher.Constraint("Horizontal", 2))
sketch19.addConstraint(Sketcher.Constraint("Equal", 0, 1))
sketch19.addConstraint(Sketcher.Constraint("DistanceY", -1, 1, 1, 2, Q("13 mm")))
sketch19.addConstraint(Sketcher.Constraint("DistanceX", 2, 1, 2, 2, Q("0.75 mm")))
sketch19.addConstraint(Sketcher.Constraint("DistanceX", 2, 2, -1, 1, Q("11.5 mm")))
sketch19.addConstraint(Sketcher.Constraint("DistanceY", -1, 1, 0, 2, Q("12.38 mm")))
sketch19.setExpression("Constraints[6]", "Params.sketch19_width")
pocket16 = body.newObject("PartDesign::Pocket", "Pocket015")
pocket16.Profile = sketch19
pocket16.Type = "UpToFirst"
pocket16.Reversed = True

sketch20 = body.newObject("Sketcher::SketchObject", "Sketch019")
sketch20.AttachmentSupport = (doc.getObject("XY_Plane"), [""])
sketch20.MapMode = "FlatFace"
sketch20.AttachmentOffset = App.Placement(V(0, 0, -15), App.Rotation())
add_polygon(sketch20, [(-13.5, 13), (-13.9, 12.4), (-14.2, 13)])
sketch20.addConstraint(Sketcher.Constraint("Horizontal", 2))
sketch20.addConstraint(Sketcher.Constraint("Equal", 0, 1))
sketch20.addConstraint(Sketcher.Constraint("DistanceY", -1, 1, 1, 2, Q("13 mm")))
sketch20.addConstraint(Sketcher.Constraint("DistanceX", 2, 1, 2, 2, Q("0.75 mm")))
sketch20.addConstraint(Sketcher.Constraint("DistanceX", 2, 2, -1, 1, Q("13.5 mm")))
sketch20.addConstraint(Sketcher.Constraint("DistanceY", -1, 1, 0, 2, Q("12.38 mm")))
sketch20.setExpression("Constraints[6]", "Params.sketch20_width")
pocket17 = body.newObject("PartDesign::Pocket", "Pocket016")
pocket17.Profile = sketch20
pocket17.Type = "UpToFirst"
pocket17.Reversed = True

doc.recompute()
